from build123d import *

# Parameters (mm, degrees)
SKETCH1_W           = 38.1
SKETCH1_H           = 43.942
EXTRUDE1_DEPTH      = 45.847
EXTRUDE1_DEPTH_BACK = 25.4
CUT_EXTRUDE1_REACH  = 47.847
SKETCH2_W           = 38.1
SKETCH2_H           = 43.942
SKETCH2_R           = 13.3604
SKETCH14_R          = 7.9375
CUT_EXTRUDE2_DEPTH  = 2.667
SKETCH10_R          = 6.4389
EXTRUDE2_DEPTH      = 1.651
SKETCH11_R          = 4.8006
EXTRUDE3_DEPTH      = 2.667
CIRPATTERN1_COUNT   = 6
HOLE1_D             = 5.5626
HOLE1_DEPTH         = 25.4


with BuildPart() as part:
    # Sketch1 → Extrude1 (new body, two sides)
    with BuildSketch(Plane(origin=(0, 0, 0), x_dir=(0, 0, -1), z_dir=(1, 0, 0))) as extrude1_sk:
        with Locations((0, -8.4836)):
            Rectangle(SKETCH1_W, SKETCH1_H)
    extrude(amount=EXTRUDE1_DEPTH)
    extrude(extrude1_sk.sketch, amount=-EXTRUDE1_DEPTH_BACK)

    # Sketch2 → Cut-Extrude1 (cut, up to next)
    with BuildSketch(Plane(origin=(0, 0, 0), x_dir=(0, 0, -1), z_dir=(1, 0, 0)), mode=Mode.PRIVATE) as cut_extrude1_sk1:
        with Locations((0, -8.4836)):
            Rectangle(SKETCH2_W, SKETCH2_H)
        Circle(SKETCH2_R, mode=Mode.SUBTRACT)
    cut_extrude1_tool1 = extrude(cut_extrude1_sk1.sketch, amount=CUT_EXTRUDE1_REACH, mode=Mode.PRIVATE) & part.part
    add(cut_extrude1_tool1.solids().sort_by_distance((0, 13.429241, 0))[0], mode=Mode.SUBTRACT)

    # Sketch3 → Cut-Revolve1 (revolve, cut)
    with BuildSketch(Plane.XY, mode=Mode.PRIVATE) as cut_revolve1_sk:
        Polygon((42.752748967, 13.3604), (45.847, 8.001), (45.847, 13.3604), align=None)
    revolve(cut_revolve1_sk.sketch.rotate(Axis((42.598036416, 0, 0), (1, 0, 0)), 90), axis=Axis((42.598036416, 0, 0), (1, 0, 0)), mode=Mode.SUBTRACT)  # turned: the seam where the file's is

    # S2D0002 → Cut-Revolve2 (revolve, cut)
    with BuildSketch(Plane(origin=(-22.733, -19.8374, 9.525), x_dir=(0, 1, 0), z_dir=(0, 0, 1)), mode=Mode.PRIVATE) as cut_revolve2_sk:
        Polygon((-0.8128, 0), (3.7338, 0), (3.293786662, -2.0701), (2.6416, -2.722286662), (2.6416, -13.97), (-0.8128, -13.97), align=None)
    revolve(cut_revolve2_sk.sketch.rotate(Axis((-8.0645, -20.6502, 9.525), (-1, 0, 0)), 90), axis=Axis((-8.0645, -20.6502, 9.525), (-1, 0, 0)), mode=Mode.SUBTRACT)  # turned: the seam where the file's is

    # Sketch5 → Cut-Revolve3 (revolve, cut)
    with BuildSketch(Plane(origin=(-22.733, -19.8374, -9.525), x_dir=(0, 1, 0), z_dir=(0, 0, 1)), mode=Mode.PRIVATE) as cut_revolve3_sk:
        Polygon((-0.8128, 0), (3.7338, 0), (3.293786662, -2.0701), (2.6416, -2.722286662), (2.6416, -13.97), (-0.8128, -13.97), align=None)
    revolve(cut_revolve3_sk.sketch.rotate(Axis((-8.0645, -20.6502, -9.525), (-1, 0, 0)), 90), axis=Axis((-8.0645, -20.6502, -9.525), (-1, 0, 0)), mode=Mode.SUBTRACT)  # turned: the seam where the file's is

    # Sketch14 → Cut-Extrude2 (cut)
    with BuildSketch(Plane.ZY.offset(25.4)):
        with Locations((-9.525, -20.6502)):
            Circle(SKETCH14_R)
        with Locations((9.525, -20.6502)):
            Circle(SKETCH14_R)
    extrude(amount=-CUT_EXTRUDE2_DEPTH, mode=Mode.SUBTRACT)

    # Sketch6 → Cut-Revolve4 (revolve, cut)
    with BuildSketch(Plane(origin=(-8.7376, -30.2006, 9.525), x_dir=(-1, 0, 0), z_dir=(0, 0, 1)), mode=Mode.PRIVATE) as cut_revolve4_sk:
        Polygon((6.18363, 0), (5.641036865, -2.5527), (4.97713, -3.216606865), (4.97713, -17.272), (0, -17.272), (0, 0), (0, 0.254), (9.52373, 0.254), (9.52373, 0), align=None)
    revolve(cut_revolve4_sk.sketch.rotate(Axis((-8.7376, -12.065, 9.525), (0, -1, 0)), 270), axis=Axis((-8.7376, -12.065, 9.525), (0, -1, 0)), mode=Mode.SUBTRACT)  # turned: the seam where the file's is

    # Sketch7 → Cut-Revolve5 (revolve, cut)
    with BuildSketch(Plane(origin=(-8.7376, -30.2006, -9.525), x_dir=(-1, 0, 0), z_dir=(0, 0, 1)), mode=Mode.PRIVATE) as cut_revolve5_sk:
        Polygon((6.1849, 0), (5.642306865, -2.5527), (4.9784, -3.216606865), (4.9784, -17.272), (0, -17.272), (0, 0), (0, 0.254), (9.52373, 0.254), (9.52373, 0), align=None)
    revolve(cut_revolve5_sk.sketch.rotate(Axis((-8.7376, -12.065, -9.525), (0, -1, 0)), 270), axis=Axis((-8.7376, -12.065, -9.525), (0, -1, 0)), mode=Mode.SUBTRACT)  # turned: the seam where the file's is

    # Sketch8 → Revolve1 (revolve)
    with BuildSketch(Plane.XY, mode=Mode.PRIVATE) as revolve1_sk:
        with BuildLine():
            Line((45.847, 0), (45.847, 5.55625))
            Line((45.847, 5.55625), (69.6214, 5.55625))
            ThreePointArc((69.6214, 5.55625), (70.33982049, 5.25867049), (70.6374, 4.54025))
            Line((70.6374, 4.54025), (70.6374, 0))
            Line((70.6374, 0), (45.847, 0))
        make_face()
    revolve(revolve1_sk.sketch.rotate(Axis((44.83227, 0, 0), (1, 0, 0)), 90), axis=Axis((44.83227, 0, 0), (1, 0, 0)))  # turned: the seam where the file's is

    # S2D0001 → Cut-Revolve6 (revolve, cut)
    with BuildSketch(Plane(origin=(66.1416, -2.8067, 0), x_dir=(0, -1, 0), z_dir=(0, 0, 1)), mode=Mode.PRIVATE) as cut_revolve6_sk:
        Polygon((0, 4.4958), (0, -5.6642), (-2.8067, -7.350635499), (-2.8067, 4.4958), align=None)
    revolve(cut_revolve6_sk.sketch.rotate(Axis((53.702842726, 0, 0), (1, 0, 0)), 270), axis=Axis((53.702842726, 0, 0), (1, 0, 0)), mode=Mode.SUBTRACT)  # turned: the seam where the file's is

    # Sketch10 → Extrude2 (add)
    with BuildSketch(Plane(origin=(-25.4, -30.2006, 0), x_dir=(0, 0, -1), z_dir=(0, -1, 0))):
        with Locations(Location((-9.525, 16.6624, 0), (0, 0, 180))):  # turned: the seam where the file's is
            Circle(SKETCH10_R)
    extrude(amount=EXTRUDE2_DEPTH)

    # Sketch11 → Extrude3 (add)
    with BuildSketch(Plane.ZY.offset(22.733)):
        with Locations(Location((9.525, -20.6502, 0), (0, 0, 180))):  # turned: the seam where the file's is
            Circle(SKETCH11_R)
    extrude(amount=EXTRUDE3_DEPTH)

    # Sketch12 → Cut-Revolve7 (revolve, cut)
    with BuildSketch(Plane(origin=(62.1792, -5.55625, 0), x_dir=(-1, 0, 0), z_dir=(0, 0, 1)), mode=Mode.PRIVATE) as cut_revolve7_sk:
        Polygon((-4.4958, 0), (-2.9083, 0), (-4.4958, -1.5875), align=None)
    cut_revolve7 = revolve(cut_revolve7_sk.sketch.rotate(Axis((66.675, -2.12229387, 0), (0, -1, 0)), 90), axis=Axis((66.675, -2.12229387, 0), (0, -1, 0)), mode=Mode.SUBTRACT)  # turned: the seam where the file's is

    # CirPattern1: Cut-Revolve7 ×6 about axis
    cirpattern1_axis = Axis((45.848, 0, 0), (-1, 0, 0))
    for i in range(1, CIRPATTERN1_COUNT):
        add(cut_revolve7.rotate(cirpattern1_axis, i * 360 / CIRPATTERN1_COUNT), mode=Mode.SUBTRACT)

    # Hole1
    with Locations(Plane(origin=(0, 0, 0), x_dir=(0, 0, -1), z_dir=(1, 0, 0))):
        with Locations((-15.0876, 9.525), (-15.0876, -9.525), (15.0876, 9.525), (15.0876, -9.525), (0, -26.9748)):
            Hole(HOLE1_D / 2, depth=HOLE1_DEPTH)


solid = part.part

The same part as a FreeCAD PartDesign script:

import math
import FreeCAD as App
import Part
import Sketcher

V = App.Vector
Q = App.Units.Quantity


def add_polygon(sketch, points):
    """Adds a closed chain of lines whose ends are joined by coincident constraints."""
    first, n = sketch.GeometryCount, len(points)
    for a, b in zip(points, points[1:] + points[:1]):
        sketch.addGeometry(Part.LineSegment(App.Vector(*a, 0), App.Vector(*b, 0)), False)
    for i in range(n):
        sketch.addConstraint(Sketcher.Constraint("Coincident", first + i, 2, first + (i + 1) % n, 1))

doc = App.newDocument("Part")
params = doc.addObject("Spreadsheet::Sheet", "Params")
for row, (alias, value) in enumerate([
    ("sketch1_height", "1.5 in"),
    ("sketch1_width", "1.73 in"),
    ("pad1_length", "1.805 in"),
    ("pad1_length2", "1 in"),
    ("sketch2_diameter", "1.052 in"),
    ("sketch2_height", "1.5 in"),
    ("sketch2_width", "1.73 in"),
    ("sketch3_height", "0.211 in"),
    ("groove_angle", "360 deg"),
    ("sketch4_width", "0.55 in"),
    ("sketch4_height", "0.179 in"),
    ("sketch4_height2", "0.136 in"),
    ("groove2_angle", "360 deg"),
    ("sketch5_width", "0.55 in"),
    ("sketch5_height", "0.179 in"),
    ("sketch5_height2", "0.136 in"),
    ("groove3_angle", "360 deg"),
    ("sketch6_diameter", "0.625 in"),
    ("pocket2_length", "0.105 in"),
    ("sketch7_height", "0.01 in"),
    ("sketch7_height2", "0.69 in"),
    ("groove4_angle", "360 deg"),
    ("sketch8_height", "0.01 in"),
    ("sketch8_height2", "0.69 in"),
    ("sketch8_width", "0.196 in"),
    ("groove5_angle", "360 deg"),
    ("sketch9_radius", "0.04 in"),
    ("sketch9_width", "0.976 in"),
    ("sketch9_height", "0.21875 in"),
    ("revolution_angle", "360 deg"),
    ("sketch10_width", "0.4 in"),
    ("groove6_angle", "360 deg"),
    ("sketch11_diameter", "0.507 in"),
    ("pad2_length", "0.065 in"),
    ("sketch12_diameter", "0.378 in"),
    ("pad3_length", "0.105 in"),
    ("sketch13_width", "0.0625 in"),
    ("groove7_angle", "360 deg"),
    ("sketch14_diameter", "0.219 in"),
    ("hole_diameter", "0.219 in"),
    ("hole_depth", "1 in"),
], start=1):
    params.set(f"A{row}", alias)
    params.set(f"B{row}", "=" + value)
    params.setAlias(f"B{row}", alias)

body = doc.addObject("PartDesign::Body", "Body")

# Sketch on YZ plane
sketch1 = doc.addObject("Sketcher::SketchObject", "Sketch")
body.addObject(sketch1)
sketch1.AttachmentSupport = (doc.YZ_Plane, [""])
sketch1.MapMode = "FlatFace"
add_polygon(sketch1, [(13, 19), (-30, 19), (-30, -19), (13, -19)])  # lines 0-3
sketch1.addConstraint([
    Sketcher.Constraint("Horizontal", 0),
    Sketcher.Constraint("Vertical", 1),
    Sketcher.Constraint("Horizontal", 2),
    Sketcher.Constraint("Vertical", 3),
    Sketcher.Constraint("DistanceY", 1, 2, 1, 1, Q("1.5 in")),
    Sketcher.Constraint("DistanceX", 0, 2, 0, 1, Q("1.73 in")),
    Sketcher.Constraint("DistanceY", -1, 1, 0, 2, Q("0.75 in")),
    Sketcher.Constraint("DistanceX", 0, 2, -1, 1, Q("1.199 in")),
])
sketch1.setExpression("Constraints[8]", "Params.sketch1_height")
sketch1.setExpression("Constraints[9]", "Params.sketch1_width")
pad1 = doc.addObject("PartDesign::Pad", "Pad")
body.addObject(pad1)
pad1.Profile = sketch1
pad1.Type = "TwoLengths"
pad1.setExpression("Length", "Params.pad1_length")
pad1.setExpression("Length2", "Params.pad1_length2")

# Sketch on YZ plane
sketch2 = doc.addObject("Sketcher::SketchObject", "Sketch001")
body.addObject(sketch2)
sketch2.AttachmentSupport = (doc.YZ_Plane, [""])
sketch2.MapMode = "FlatFace"
add_polygon(sketch2, [(13, 19), (-30, 19), (-30, -19), (13, -19)])  # lines 0-3
sketch2.addGeometry(Part.Circle(V(0, 0, 0), V(0, 0, 1), 13), False)  # 4
sketch2.addConstraint([
    Sketcher.Constraint("Horizontal", 0),
    Sketcher.Constraint("Vertical", 1),
    Sketcher.Constraint("Horizontal", 2),
    Sketcher.Constraint("Vertical", 3),
    Sketcher.Constraint("Coincident", 4, 3, -1, 1),
    Sketcher.Constraint("Diameter", 4, Q("1.052 in")),
    Sketcher.Constraint("DistanceY", 1, 2, 1, 1, Q("1.5 in")),
    Sketcher.Constraint("DistanceX", 0, 2, 0, 1, Q("1.73 in")),
    Sketcher.Constraint("DistanceY", -1, 1, 0, 2, Q("0.75 in")),
    Sketcher.Constraint("DistanceX", 0, 2, -1, 1, Q("1.199 in")),
])
sketch2.setExpression("Constraints[9]", "Params.sketch2_diameter")
sketch2.setExpression("Constraints[10]", "Params.sketch2_height")
sketch2.setExpression("Constraints[11]", "Params.sketch2_width")
pocket1 = doc.addObject("PartDesign::Pocket", "Pocket")
body.addObject(pocket1)
pocket1.Profile = sketch2
pocket1.Type = "UpToFirst"
pocket1.Reversed = True

# Sketch on XY plane
sketch3 = doc.addObject("Sketcher::SketchObject", "Sketch002")
body.addObject(sketch3)
sketch3.AttachmentSupport = (doc.XY_Plane, [""])
sketch3.MapMode = "FlatFace"
add_polygon(sketch3, [(42.8, 13.4), (45.8, 8), (45.8, 13.4)])  # lines 0-2
sketch3.addConstraint([
    Sketcher.Constraint("Vertical", 1),
    Sketcher.Constraint("Horizontal", 2),
    Sketcher.Constraint("Angle", 0, Q("-60 deg")),
    Sketcher.Constraint("DistanceY", 1, 1, 1, 2, Q("0.211 in")),
    Sketcher.Constraint("DistanceX", -1, 1, 0, 2, Q("1.805 in")),
    Sketcher.Constraint("DistanceY", -1, 1, 0, 2, Q("0.315 in")),
])
sketch3.setExpression("Constraints[6]", "Params.sketch3_height")
groove = doc.addObject("PartDesign::Groove", "Groove")
body.addObject(groove)
groove.Profile = sketch3
groove.ReferenceAxis = (sketch3, ["H_Axis"])
groove.setExpression("Angle", "Params.groove_angle")

# Sketch on XY plane
sketch4 = doc.addObject("Sketcher::SketchObject", "Sketch003")
body.addObject(sketch4)
sketch4.AttachmentSupport = (doc.XY_Plane, [""])
sketch4.MapMode = "FlatFace"
sketch4.AttachmentOffset = App.Placement(V(0, 0, 0.375 * 25.4), App.Rotation())
add_polygon(sketch4, [(-22.7, -16.1), (-22.7, -20.7), (-8.8, -20.7), (-8.8, -17.2), (-20, -17.2), (-20.7, -16.5)])  # lines 0-5
sketch4.addGeometry(Part.LineSegment(V(-8.8, -20.7, 0), V(-22.7, -20.7, 0)), True)  # axis
sketch4.addConstraint([
    Sketcher.Constraint("Vertical", 0),
    Sketcher.Constraint("Horizontal", 1),
    Sketcher.Constraint("Vertical", 2),
    Sketcher.Constraint("Horizontal", 3),
    Sketcher.Constraint("Horizontal", 6),
    Sketcher.Constraint("Coincident", 6, 1, 1, 2),
    Sketcher.Constraint("Vertical", 5, 2, 6, 2),
    Sketcher.Constraint("Angle", 4, Q("135 deg")),
    Sketcher.Constraint("Angle", 5, Q("168 deg")),
    Sketcher.Constraint("DistanceX", 1, 1, 1, 2, Q("0.55 in")),
    Sketcher.Constraint("DistanceY", 0, 2, 0, 1, Q("0.179 in")),
    Sketcher.Constraint("DistanceY", 2, 1, 2, 2, Q("0.136 in")),
    Sketcher.Constraint("DistanceX", 0, 2, -1, 1, Q("0.895 in")),
    Sketcher.Constraint("DistanceY", 0, 2, -1, 1, Q("0.813 in")),
    Sketcher.Constraint("DistanceX", 4, 2, -1, 1, Q("0.8135 in")),
])
sketch4.setExpression("Constraints[15]", "Params.sketch4_width")
sketch4.setExpression("Constraints[16]", "Params.sketch4_height")
sketch4.setExpression("Constraints[17]", "Params.sketch4_height2")
groove2 = doc.addObject("PartDesign::Groove", "Groove001")
body.addObject(groove2)
groove2.Profile = sketch4
groove2.ReferenceAxis = (sketch4, ["Axis0"])
groove2.setExpression("Angle", "Params.groove2_angle")

# Sketch on XY plane
sketch5 = doc.addObject("Sketcher::SketchObject", "Sketch004")
body.addObject(sketch5)
sketch5.AttachmentSupport = (doc.XY_Plane, [""])
sketch5.MapMode = "FlatFace"
sketch5.AttachmentOffset = App.Placement(V(0, 0, -0.375 * 25.4), App.Rotation())
add_polygon(sketch5, [(-22.7, -16.1), (-22.7, -20.7), (-8.8, -20.7), (-8.8, -17.2), (-20, -17.2), (-20.7, -16.5)])  # lines 0-5
sketch5.addGeometry(Part.LineSegment(V(-8.8, -20.7, 0), V(-22.7, -20.7, 0)), True)  # axis
sketch5.addConstraint([
    Sketcher.Constraint("Vertical", 0),
    Sketcher.Constraint("Horizontal", 1),
    Sketcher.Constraint("Vertical", 2),
    Sketcher.Constraint("Horizontal", 3),
    Sketcher.Constraint("Horizontal", 6),
    Sketcher.Constraint("Coincident", 6, 1, 1, 2),
    Sketcher.Constraint("Vertical", 5, 2, 6, 2),
    Sketcher.Constraint("Angle", 4, Q("135 deg")),
    Sketcher.Constraint("Angle", 5, Q("168 deg")),
    Sketcher.Constraint("DistanceX", 1, 1, 1, 2, Q("0.55 in")),
    Sketcher.Constraint("DistanceY", 0, 2, 0, 1, Q("0.179 in")),
    Sketcher.Constraint("DistanceY", 2, 1, 2, 2, Q("0.136 in")),
    Sketcher.Constraint("DistanceX", 0, 2, -1, 1, Q("0.895 in")),
    Sketcher.Constraint("DistanceY", 0, 2, -1, 1, Q("0.813 in")),
    Sketcher.Constraint("DistanceX", 4, 2, -1, 1, Q("0.8135 in")),
])
sketch5.setExpression("Constraints[15]", "Params.sketch5_width")
sketch5.setExpression("Constraints[16]", "Params.sketch5_height")
sketch5.setExpression("Constraints[17]", "Params.sketch5_height2")
groove3 = doc.addObject("PartDesign::Groove", "Groove002")
body.addObject(groove3)
groove3.Profile = sketch5
groove3.ReferenceAxis = (sketch5, ["Axis0"])
groove3.setExpression("Angle", "Params.groove3_angle")

# Sketch on YZ plane
sketch6 = doc.addObject("Sketcher::SketchObject", "Sketch005")
body.addObject(sketch6)
sketch6.AttachmentSupport = (doc.YZ_Plane, [""])
sketch6.MapMode = "FlatFace"
sketch6.AttachmentOffset = App.Placement(V(0, 0, -1 * 25.4), App.Rotation())
sketch6.addGeometry([
    Part.Circle(V(-21, -10, 0), V(0, 0, 1), 8),
    Part.Circle(V(-21, 10, 0), V(0, 0, 1), 8),
], False)
sketch6.addConstraint([
    Sketcher.Constraint("Equal", 0, 1),
    Sketcher.Constraint("Symmetric", 0, 3, 1, 3, -1),
    Sketcher.Constraint("Diameter", 0, Q("0.625 in")),
    Sketcher.Constraint("DistanceY", 0, 3, 1, 3, Q("0.75 in")),
    Sketcher.Constraint("DistanceX", 0, 3, -1, 1, Q("0.813 in")),
])
sketch6.setExpression("Constraints[2]", "Params.sketch6_diameter")
pocket2 = doc.addObject("PartDesign::Pocket", "Pocket001")
body.addObject(pocket2)
pocket2.Profile = sketch6
pocket2.setExpression("Length", "Params.pocket2_length")
pocket2.Reversed = True

# Sketch on XY plane
sketch7 = doc.addObject("Sketcher::SketchObject", "Sketch006")
body.addObject(sketch7)
sketch7.AttachmentSupport = (doc.XY_Plane, [""])
sketch7.MapMode = "FlatFace"
sketch7.AttachmentOffset = App.Placement(V(0, 0, 0.375 * 25.4), App.Rotation())
add_polygon(sketch7, [(-14.38, -27.65), (-14.92, -30.2), (-18.26, -30.2), (-18.26, -30.45), (-8.74, -30.45), (-8.74, -12.93), (-13.71, -12.93), (-13.71, -26.98)])  # lines 0-7
sketch7.addGeometry(Part.LineSegment(V(-8.74, -12.93, 0), V(-8.74, -30.45, 0)), True)  # axis
sketch7.addConstraint([
    Sketcher.Constraint("Horizontal", 1),
    Sketcher.Constraint("Vertical", 2),
    Sketcher.Constraint("Horizontal", 3),
    Sketcher.Constraint("Vertical", 4),
    Sketcher.Constraint("Horizontal", 5),
    Sketcher.Constraint("Vertical", 6),
    Sketcher.Constraint("Vertical", 8),
    Sketcher.Constraint("Coincident", 8, 1, 4, 2),
    Sketcher.Constraint("Horizontal", 2, 2, 8, 2),
    Sketcher.Constraint("Angle", 0, Q("-102 deg")),
    Sketcher.Constraint("Angle", 7, Q("-135 deg")),
    Sketcher.Constraint("DistanceY", 2, 2, 2, 1, Q("0.01 in")),
    Sketcher.Constraint("DistanceY", 4, 1, 4, 2, Q("0.69 in")),
    Sketcher.Constraint("DistanceX", 1, 2, 1, 1, Q("0.1315 in")),
    Sketcher.Constraint("DistanceY", 0, 2, -1, 1, Q("1.189 in")),
    Sketcher.Constraint("DistanceX", 3, 2, -1, 1, Q("0.344 in")),
    Sketcher.Constraint("DistanceX", 1, 2, 5, 2, Q("0.179 in")),
    Sketcher.Constraint("DistanceY", 7, 2, -1, 1, Q("1.0885 in")),
    Sketcher.Constraint("DistanceX", 3, 1, 3, 2, Q("9.52373 mm")),
])
sketch7.setExpression("Constraints[19]", "Params.sketch7_height")
sketch7.setExpression("Constraints[20]", "Params.sketch7_height2")
groove4 = doc.addObject("PartDesign::Groove", "Groove003")
body.addObject(groove4)
groove4.Profile = sketch7
groove4.ReferenceAxis = (sketch7, ["Axis0"])
groove4.setExpression("Angle", "Params.groove4_angle")

# Sketch on XY plane
sketch8 = doc.addObject("Sketcher::SketchObject", "Sketch007")
body.addObject(sketch8)
sketch8.AttachmentSupport = (doc.XY_Plane, [""])
sketch8.MapMode = "FlatFace"
sketch8.AttachmentOffset = App.Placement(V(0, 0, -0.375 * 25.4), App.Rotation())
add_polygon(sketch8, [(-14.38, -27.65), (-14.92, -30.2), (-18.26, -30.2), (-18.26, -30.45), (-8.74, -30.45), (-8.74, -12.93), (-13.72, -12.93), (-13.72, -26.98)])  # lines 0-7
sketch8.addGeometry(Part.LineSegment(V(-8.74, -12.93, 0), V(-8.74, -30.45, 0)), True)  # axis
sketch8.addConstraint([
    Sketcher.Constraint("Horizontal", 1),
    Sketcher.Constraint("Vertical", 2),
    Sketcher.Constraint("Horizontal", 3),
    Sketcher.Constraint("Vertical", 4),
    Sketcher.Constraint("Horizontal", 5),
    Sketcher.Constraint("Vertical", 6),
    Sketcher.Constraint("Vertical", 8),
    Sketcher.Constraint("Coincident", 8, 1, 4, 2),
    Sketcher.Constraint("Horizontal", 2, 2, 8, 2),
    Sketcher.Constraint("Angle", 0, Q("-102 deg")),
    Sketcher.Constraint("Angle", 7, Q("-135 deg")),
    Sketcher.Constraint("DistanceY", 2, 2, 2, 1, Q("0.01 in")),
    Sketcher.Constraint("DistanceY", 4, 1, 4, 2, Q("0.69 in")),
    Sketcher.Constraint("DistanceX", 5, 2, 5, 1, Q("0.196 in")),
    Sketcher.Constraint("DistanceX", 5, 2, -1, 1, Q("0.54 in")),
    Sketcher.Constraint("DistanceY", 0, 2, -1, 1, Q("1.189 in")),
    Sketcher.Constraint("DistanceX", 0, 2, -1, 1, Q("0.5875 in")),
    Sketcher.Constraint("DistanceY", 7, 2, -1, 1, Q("1.0885 in")),
    Sketcher.Constraint("DistanceX", 1, 2, 1, 1, Q("3.33883 mm")),
])
sketch8.setExpression("Constraints[19]", "Params.sketch8_height")
sketch8.setExpression("Constraints[20]", "Params.sketch8_height2")
sketch8.setExpression("Constraints[21]", "Params.sketch8_width")
groove5 = doc.addObject("PartDesign::Groove", "Groove004")
body.addObject(groove5)
groove5.Profile = sketch8
groove5.ReferenceAxis = (sketch8, ["Axis0"])
groove5.setExpression("Angle", "Params.groove5_angle")

# Sketch on XY plane
sketch9 = doc.addObject("Sketcher::SketchObject", "Sketch008")
body.addObject(sketch9)
sketch9.AttachmentSupport = (doc.XY_Plane, [""])
sketch9.MapMode = "FlatFace"
sketch9.addGeometry([
    Part.LineSegment(V(45.8, 5.6, 0), V(45.8, 0, 0)),  # 0
    Part.LineSegment(V(45.8, 0, 0), V(70.6, 0, 0)),  # 1
    Part.LineSegment(V(70.6, 0, 0), V(70.6, 4.5, 0)),  # 2
    Part.ArcOfCircle(Part.Circle(V(69.6, 4.5, 0), V(0, 0, 1), 1), math.radians(0), math.radians(90)),  # 3
    Part.LineSegment(V(69.6, 5.6, 0), V(45.8, 5.6, 0)),  # 4
], False)
sketch9.addConstraint([
    Sketcher.Constraint("Coincident", 0, 2, 1, 1),
    Sketcher.Constraint("Coincident", 1, 2, 2, 1),
    Sketcher.Constraint("Tangent", 2, 2, 3, 1),
    Sketcher.Constraint("Tangent", 3, 2, 4, 1),
    Sketcher.Constraint("Coincident", 4, 2, 0, 1),
    Sketcher.Constraint("Vertical", 0),
    Sketcher.Constraint("Horizontal", 1),
    Sketcher.Constraint("Vertical", 2),
    Sketcher.Constraint("Horizontal", 4),
    Sketcher.Constraint("PointOnObject", 0, 2, -1),
    Sketcher.Constraint("Radius", 3, Q("0.04 in")),
    Sketcher.Constraint("DistanceX", 1, 1, 1, 2, Q("0.976 in")),
    Sketcher.Constraint("DistanceY", 0, 2, 0, 1, Q("0.21875 in")),
    Sketcher.Constraint("DistanceX", -1, 1, 3, 3, Q("2.741 in")),
])
sketch9.setExpression("Constraints[10]", "Params.sketch9_radius")
sketch9.setExpression("Constraints[11]", "Params.sketch9_width")
sketch9.setExpression("Constraints[12]", "Params.sketch9_height")
revolution = doc.addObject("PartDesign::Revolution", "Revolution")
body.addObject(revolution)
revolution.Profile = sketch9
revolution.ReferenceAxis = (sketch9, ["H_Axis"])
revolution.setExpression("Angle", "Params.revolution_angle")

# Sketch on XY plane
sketch10 = doc.addObject("Sketcher::SketchObject", "Sketch009")
body.addObject(sketch10)
sketch10.AttachmentSupport = (doc.XY_Plane, [""])
sketch10.MapMode = "FlatFace"
add_polygon(sketch10, [(60.5, -2.8), (70.6, -2.8), (70.6, 0), (58.8, 0)])  # lines 0-3
sketch10.addConstraint([
    Sketcher.Constraint("Horizontal", 0),
    Sketcher.Constraint("Vertical", 1),
    Sketcher.Constraint("Horizontal", 2),
    Sketcher.Constraint("PointOnObject", 1, 2, -1),
    Sketcher.Constraint("DistanceX", 0, 1, 0, 2, Q("0.4 in")),
    Sketcher.Constraint("Angle", 3, Q("-59 deg")),
    Sketcher.Constraint("DistanceY", 1, 1, 1, 2, Q("0.1105 in")),
    Sketcher.Constraint("DistanceX", -1, 1, 0, 2, Q("2.781 in")),
])
sketch10.setExpression("Constraints[8]", "Params.sketch10_width")
groove6 = doc.addObject("PartDesign::Groove", "Groove005")
body.addObject(groove6)
groove6.Profile = sketch10
groove6.ReferenceAxis = (sketch10, ["H_Axis"])
groove6.setExpression("Angle", "Params.groove6_angle")

# Sketch on XZ plane
sketch11 = doc.addObject("Sketcher::SketchObject", "Sketch010")
body.addObject(sketch11)
sketch11.AttachmentSupport = (doc.XZ_Plane, [""])
sketch11.MapMode = "FlatFace"
sketch11.AttachmentOffset = App.Placement(V(0, 0, 1.189 * 25.4), App.Rotation())
sketch11.addGeometry(Part.Circle(V(-9, 10, 0), V(0, 0, 1), 6), False)
sketch11.addConstraint([
    Sketcher.Constraint("Diameter", 0, Q("0.507 in")),
    Sketcher.Constraint("DistanceX", 0, 3, -1, 1, Q("0.344 in")),
    Sketcher.Constraint("DistanceY", -1, 1, 0, 3, Q("0.375 in")),
])
sketch11.setExpression("Constraints[0]", "Params.sketch11_diameter")
pad2 = doc.addObject("PartDesign::Pad", "Pad001")
body.addObject(pad2)
pad2.Profile = sketch11
pad2.setExpression("Length", "Params.pad2_length")

# Sketch on YZ plane
sketch12 = doc.addObject("Sketcher::SketchObject", "Sketch011")
body.addObject(sketch12)
sketch12.AttachmentSupport = (doc.YZ_Plane, [""])
sketch12.MapMode = "FlatFace"
sketch12.AttachmentOffset = App.Placement(V(0, 0, -0.895 * 25.4), App.Rotation())
sketch12.addGeometry(Part.Circle(V(-20.7, 9.5, 0), V(0, 0, 1), 4.8), False)
sketch12.addConstraint([
    Sketcher.Constraint("Diameter", 0, Q("0.378 in")),
    Sketcher.Constraint("DistanceX", 0, 3, -1, 1, Q("0.813 in")),
    Sketcher.Constraint("DistanceY", -1, 1, 0, 3, Q("0.375 in")),
])
sketch12.setExpression("Constraints[0]", "Params.sketch12_diameter")
pad3 = doc.addObject("PartDesign::Pad", "Pad002")
body.addObject(pad3)
pad3.Profile = sketch12
pad3.setExpression("Length", "Params.pad3_length")
pad3.Reversed = True

# Sketch on XY plane
sketch13 = doc.addObject("Sketcher::SketchObject", "Sketch012")
body.addObject(sketch13)
sketch13.AttachmentSupport = (doc.XY_Plane, [""])
sketch13.MapMode = "FlatFace"
add_polygon(sketch13, [(65.1, -5.6), (66.7, -5.6), (66.7, -4)])  # lines 0-2
sketch13.addGeometry(Part.LineSegment(V(66.7, -4, 0), V(66.7, -5.6, 0)), True)  # axis
sketch13.addConstraint([
    Sketcher.Constraint("Horizontal", 0),
    Sketcher.Constraint("Vertical", 1),
    Sketcher.Constraint("Vertical", 3),
    Sketcher.Constraint("Coincident", 3, 1, 1, 2),
    Sketcher.Constraint("Horizontal", 2, 2, 3, 2),
    Sketcher.Constraint("Equal", 0, 1),
    Sketcher.Constraint("DistanceX", 0, 1, 0, 2, Q("0.0625 in")),
    Sketcher.Constraint("DistanceX", -1, 1, 0, 2, Q("2.625 in")),
    Sketcher.Constraint("DistanceY", 0, 2, -1, 1, Q("0.21875 in")),
])
sketch13.setExpression("Constraints[9]", "Params.sketch13_width")
groove7 = doc.addObject("PartDesign::Groove", "Groove006")
body.addObject(groove7)
groove7.Profile = sketch13
groove7.ReferenceAxis = (sketch13, ["Axis0"])
groove7.setExpression("Angle", "Params.groove7_angle")
doc.recompute()

polarpattern = doc.addObject("PartDesign::PolarPattern", "PolarPattern")
body.addObject(polarpattern)
polarpattern.Originals = [groove7]
polarpattern.Axis = (doc.X_Axis, [""])
polarpattern.Angle = 360
polarpattern.Occurrences = 6
body.Tip = polarpattern

# Sketch on YZ plane
sketch14 = doc.addObject("Sketcher::SketchObject", "Sketch013")
body.addObject(sketch14)
sketch14.AttachmentSupport = (doc.YZ_Plane, [""])
sketch14.MapMode = "FlatFace"
sketch14.addGeometry([
    Part.Circle(V(9.5, 15.1, 0), V(0, 0, 1), 2.8),  # 0
    Part.Circle(V(-9.5, 15.1, 0), V(0, 0, 1), 2.8),  # 1
    Part.Circle(V(9.5, -15.1, 0), V(0, 0, 1), 2.8),  # 2
    Part.Circle(V(-9.5, -15.1, 0), V(0, 0, 1), 2.8),  # 3
    Part.Circle(V(-27, 0, 0), V(0, 0, 1), 2.8),  # 4
], False)
sketch14.addConstraint([
    Sketcher.Constraint("Equal", 0, 1),
    Sketcher.Constraint("Equal", 1, 2),
    Sketcher.Constraint("Equal", 2, 3),
    Sketcher.Constraint("Equal", 3, 4),
    Sketcher.Constraint("Symmetric", 1, 3, 2, 3, -1, 1),
    Sketcher.Constraint("Symmetric", 0, 3, 3, 3, -1, 1),
    Sketcher.Constraint("Symmetric", 0, 3, 1, 3, -2),
    Sketcher.Constraint("PointOnObject", 4, 3, -1),
    Sketcher.Constraint("Diameter", 0, Q("0.219 in")),
    Sketcher.Constraint("DistanceX", 1, 3, 0, 3, Q("0.75 in")),
    Sketcher.Constraint("DistanceY", -1, 1, 0, 3, Q("0.594 in")),
    Sketcher.Constraint("DistanceX", 4, 3, -1, 1, Q("1.062 in")),
])
sketch14.setExpression("Constraints[8]", "Params.sketch14_diameter")
doc.recompute()
hole = doc.addObject("PartDesign::Hole", "Hole")
body.addObject(hole)
hole.Profile = sketch14
hole.ThreadType = "None"
hole.setExpression("Diameter", "Params.hole_diameter")
hole.DepthType = "Dimension"
hole.setExpression("Depth", "Params.hole_depth")
hole.DrillPoint = "Flat"

doc.recompute()
